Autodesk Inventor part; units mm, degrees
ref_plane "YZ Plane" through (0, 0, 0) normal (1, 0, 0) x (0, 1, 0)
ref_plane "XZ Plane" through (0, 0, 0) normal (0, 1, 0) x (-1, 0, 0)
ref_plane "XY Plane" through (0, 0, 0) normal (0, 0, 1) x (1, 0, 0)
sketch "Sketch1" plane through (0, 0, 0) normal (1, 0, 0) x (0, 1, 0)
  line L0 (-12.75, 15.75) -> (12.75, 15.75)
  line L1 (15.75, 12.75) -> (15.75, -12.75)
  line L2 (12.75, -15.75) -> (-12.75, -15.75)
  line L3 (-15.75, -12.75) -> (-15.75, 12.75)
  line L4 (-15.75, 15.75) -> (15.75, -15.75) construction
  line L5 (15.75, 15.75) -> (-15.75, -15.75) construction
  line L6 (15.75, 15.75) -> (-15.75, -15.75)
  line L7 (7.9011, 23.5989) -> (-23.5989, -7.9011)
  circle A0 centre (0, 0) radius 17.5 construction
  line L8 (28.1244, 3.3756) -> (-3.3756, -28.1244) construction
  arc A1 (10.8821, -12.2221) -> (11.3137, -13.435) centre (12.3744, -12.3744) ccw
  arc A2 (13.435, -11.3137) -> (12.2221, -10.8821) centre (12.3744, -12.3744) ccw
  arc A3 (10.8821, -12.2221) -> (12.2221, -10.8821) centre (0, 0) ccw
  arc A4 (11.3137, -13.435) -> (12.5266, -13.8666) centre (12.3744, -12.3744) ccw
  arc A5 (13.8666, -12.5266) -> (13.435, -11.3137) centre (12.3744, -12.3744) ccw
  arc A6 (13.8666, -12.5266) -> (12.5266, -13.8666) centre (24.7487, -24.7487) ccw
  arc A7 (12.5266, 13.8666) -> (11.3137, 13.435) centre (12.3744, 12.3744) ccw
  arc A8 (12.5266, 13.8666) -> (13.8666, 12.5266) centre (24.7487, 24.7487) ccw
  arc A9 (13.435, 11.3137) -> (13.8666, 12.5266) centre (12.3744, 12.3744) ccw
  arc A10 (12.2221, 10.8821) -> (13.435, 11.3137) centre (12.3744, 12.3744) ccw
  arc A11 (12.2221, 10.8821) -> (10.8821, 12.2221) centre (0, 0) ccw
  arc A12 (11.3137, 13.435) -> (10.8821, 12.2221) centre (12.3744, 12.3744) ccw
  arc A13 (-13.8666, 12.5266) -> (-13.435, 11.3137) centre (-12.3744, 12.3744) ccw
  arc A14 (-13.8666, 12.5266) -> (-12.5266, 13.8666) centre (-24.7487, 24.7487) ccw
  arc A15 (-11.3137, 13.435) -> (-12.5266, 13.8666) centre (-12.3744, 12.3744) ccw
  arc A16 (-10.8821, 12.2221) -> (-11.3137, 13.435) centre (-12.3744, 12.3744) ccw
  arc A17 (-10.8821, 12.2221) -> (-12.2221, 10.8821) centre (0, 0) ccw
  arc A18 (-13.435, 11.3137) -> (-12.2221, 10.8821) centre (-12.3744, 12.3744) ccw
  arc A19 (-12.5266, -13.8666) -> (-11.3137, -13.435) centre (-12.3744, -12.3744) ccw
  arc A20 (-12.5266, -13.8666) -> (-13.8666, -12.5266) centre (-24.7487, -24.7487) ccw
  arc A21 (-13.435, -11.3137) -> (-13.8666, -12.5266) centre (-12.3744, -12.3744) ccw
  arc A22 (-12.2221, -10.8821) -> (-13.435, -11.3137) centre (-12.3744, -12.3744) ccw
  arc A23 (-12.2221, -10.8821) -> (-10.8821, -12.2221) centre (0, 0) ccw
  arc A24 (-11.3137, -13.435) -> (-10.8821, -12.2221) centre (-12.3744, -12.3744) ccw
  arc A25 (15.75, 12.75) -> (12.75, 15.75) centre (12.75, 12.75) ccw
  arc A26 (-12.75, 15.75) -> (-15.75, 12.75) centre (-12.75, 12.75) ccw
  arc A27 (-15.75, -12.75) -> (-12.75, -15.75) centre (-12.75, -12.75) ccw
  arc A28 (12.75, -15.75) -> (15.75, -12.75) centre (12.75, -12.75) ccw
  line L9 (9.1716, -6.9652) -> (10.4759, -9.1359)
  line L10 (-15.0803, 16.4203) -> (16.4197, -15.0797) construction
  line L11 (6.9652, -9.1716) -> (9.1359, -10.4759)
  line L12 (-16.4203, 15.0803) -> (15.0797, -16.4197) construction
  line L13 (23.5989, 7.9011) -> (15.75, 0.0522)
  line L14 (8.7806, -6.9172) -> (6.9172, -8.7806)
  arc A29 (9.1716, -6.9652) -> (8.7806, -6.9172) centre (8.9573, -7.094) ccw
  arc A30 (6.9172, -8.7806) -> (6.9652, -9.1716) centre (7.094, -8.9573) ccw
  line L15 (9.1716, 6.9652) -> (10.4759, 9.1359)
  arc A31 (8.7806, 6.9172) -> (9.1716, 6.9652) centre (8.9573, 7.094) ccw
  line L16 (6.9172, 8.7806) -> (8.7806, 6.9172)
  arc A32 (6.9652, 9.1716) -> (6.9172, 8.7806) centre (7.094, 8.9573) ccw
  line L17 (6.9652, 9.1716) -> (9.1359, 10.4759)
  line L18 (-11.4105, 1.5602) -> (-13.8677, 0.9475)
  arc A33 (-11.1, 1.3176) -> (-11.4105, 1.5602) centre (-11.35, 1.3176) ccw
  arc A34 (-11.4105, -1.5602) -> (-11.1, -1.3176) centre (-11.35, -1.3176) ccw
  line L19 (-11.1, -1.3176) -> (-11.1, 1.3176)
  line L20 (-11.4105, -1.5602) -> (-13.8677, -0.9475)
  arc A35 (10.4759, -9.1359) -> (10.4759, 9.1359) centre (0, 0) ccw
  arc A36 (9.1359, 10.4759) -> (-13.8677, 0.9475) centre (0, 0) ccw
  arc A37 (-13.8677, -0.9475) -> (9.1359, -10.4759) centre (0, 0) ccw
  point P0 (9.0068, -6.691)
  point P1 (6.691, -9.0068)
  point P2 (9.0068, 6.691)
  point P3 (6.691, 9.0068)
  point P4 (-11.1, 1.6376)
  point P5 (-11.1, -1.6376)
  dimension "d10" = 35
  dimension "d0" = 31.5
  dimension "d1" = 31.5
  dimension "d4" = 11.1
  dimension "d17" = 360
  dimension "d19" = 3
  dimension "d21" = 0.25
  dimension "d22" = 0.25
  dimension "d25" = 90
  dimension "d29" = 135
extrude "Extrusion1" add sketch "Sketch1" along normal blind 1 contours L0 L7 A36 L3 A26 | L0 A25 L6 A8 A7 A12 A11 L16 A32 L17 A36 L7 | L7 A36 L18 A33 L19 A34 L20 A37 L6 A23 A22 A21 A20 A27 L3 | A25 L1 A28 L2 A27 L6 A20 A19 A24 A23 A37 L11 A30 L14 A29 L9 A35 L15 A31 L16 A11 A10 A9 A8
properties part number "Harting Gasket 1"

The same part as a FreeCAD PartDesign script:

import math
import FreeCAD as App
import Part
import Sketcher
from FreeCAD import Vector
Q = App.Units.Quantity

doc = App.newDocument("Part")
body = doc.addObject("PartDesign::Body", "Body")

sketch1 = body.newObject("Sketcher::SketchObject", "Sketch")
sketch1.AttachmentSupport = (doc.getObject("YZ_Plane"), [""])
sketch1.MapMode = "FlatFace"
sketch1.addGeometry([
    Part.ArcOfCircle(Part.Circle(Vector(-12.75, 12.75, 0), Vector(0, 0, 1), 3), math.radians(90), math.radians(180)),
    Part.LineSegment(Vector(-15.75, 12.75, 0), Vector(-15.75, -12.75, 0)),
    Part.ArcOfCircle(Part.Circle(Vector(-12.75, -12.75, 0), Vector(0, 0, 1), 3), math.radians(180), math.radians(270)),
    Part.LineSegment(Vector(-12.75, -15.75, 0), Vector(12.75, -15.75, 0)),
    Part.ArcOfCircle(Part.Circle(Vector(12.75, -12.75, 0), Vector(0, 0, 1), 3), math.radians(-90), math.radians(0)),
    Part.LineSegment(Vector(15.75, -12.75, 0), Vector(15.75, 12.75, 0)),
    Part.ArcOfCircle(Part.Circle(Vector(12.75, 12.75, 0), Vector(0, 0, 1), 3), math.radians(0), math.radians(90)),
    Part.LineSegment(Vector(12.75, 15.75, 0), Vector(-12.75, 15.75, 0)),
    Part.LineSegment(Vector(9.14, 10.48, 0), Vector(6.97, 9.17, 0)),
    Part.ArcOfCircle(Part.Circle(Vector(7.09, 8.96, 0), Vector(0, 0, 1), 0.25), math.radians(121), math.radians(225)),
    Part.LineSegment(Vector(6.92, 8.78, 0), Vector(8.78, 6.92, 0)),
    Part.ArcOfCircle(Part.Circle(Vector(8.96, 7.09, 0), Vector(0, 0, 1), 0.25), math.radians(-135), math.radians(-31)),
    Part.LineSegment(Vector(9.17, 6.97, 0), Vector(10.48, 9.14, 0)),
    Part.ArcOfCircle(Part.Circle(Vector(0, 0, 0), Vector(0, 0, 1), 13.9), math.radians(-41), math.radians(41)),
    Part.LineSegment(Vector(10.48, -9.14, 0), Vector(9.17, -6.97, 0)),
    Part.ArcOfCircle(Part.Circle(Vector(8.96, -7.09, 0), Vector(0, 0, 1), 0.25), math.radians(31), math.radians(135)),
    Part.LineSegment(Vector(8.78, -6.92, 0), Vector(6.92, -8.78, 0)),
    Part.ArcOfCircle(Part.Circle(Vector(7.09, -8.96, 0), Vector(0, 0, 1), 0.25), math.radians(135), math.radians(239)),
    Part.LineSegment(Vector(6.97, -9.17, 0), Vector(9.14, -10.48, 0)),
    Part.ArcOfCircle(Part.Circle(Vector(0, 0, 0), Vector(0, 0, 1), 13.9), math.radians(-176), math.radians(-49)),
    Part.LineSegment(Vector(-13.87, -0.95, 0), Vector(-11.41, -1.56, 0)),
    Part.ArcOfCircle(Part.Circle(Vector(-11.35, -1.32, 0), Vector(0, 0, 1), 0.25), math.radians(-104), math.radians(0)),
    Part.LineSegment(Vector(-11.1, -1.32, 0), Vector(-11.1, 1.32, 0)),
    Part.ArcOfCircle(Part.Circle(Vector(-11.35, 1.32, 0), Vector(0, 0, 1), 0.25), math.radians(0), math.radians(104)),
    Part.LineSegment(Vector(-11.41, 1.56, 0), Vector(-13.87, 0.95, 0)),
    Part.ArcOfCircle(Part.Circle(Vector(0, 0, 0), Vector(0, 0, 1), 13.9), math.radians(49), math.radians(176)),
    Part.ArcOfCircle(Part.Circle(Vector(-12.37, 12.37, 0), Vector(0, 0, 1), 1.5), math.radians(174), math.radians(225)),
    Part.ArcOfCircle(Part.Circle(Vector(-24.75, 24.75, 0), Vector(0, 0, 1), 16.36), math.radians(-48.32), math.radians(-41.68)),
    Part.ArcOfCircle(Part.Circle(Vector(-12.37, 12.37, 0), Vector(0, 0, 1), 1.5), math.radians(45), math.radians(96)),
    Part.ArcOfCircle(Part.Circle(Vector(-12.37, 12.37, 0), Vector(0, 0, 1), 1.5), math.radians(-6), math.radians(45)),
    Part.ArcOfCircle(Part.Circle(Vector(0, 0, 0), Vector(0, 0, 1), 16.36), math.radians(131.68), math.radians(138.32)),
    Part.ArcOfCircle(Part.Circle(Vector(-12.37, 12.37, 0), Vector(0, 0, 1), 1.5), math.radians(-135), math.radians(-84)),
    Part.ArcOfCircle(Part.Circle(Vector(24.75, 24.75, 0), Vector(0, 0, 1), 16.36), math.radians(-138.32), math.radians(-131.68)),
    Part.ArcOfCircle(Part.Circle(Vector(12.37, 12.37, 0), Vector(0, 0, 1), 1.5), math.radians(-45), math.radians(6)),
    Part.ArcOfCircle(Part.Circle(Vector(12.37, 12.37, 0), Vector(0, 0, 1), 1.5), math.radians(-96), math.radians(-45)),
    Part.ArcOfCircle(Part.Circle(Vector(0, 0, 0), Vector(0, 0, 1), 16.36), math.radians(41.68), math.radians(48.32)),
    Part.ArcOfCircle(Part.Circle(Vector(12.37, 12.37, 0), Vector(0, 0, 1), 1.5), math.radians(135), math.radians(186)),
    Part.ArcOfCircle(Part.Circle(Vector(12.37, 12.37, 0), Vector(0, 0, 1), 1.5), math.radians(84), math.radians(135)),
    Part.ArcOfCircle(Part.Circle(Vector(0, 0, 0), Vector(0, 0, 1), 16.36), math.radians(-138.32), math.radians(-131.68)),
    Part.ArcOfCircle(Part.Circle(Vector(-12.37, -12.37, 0), Vector(0, 0, 1), 1.5), math.radians(-45), math.radians(6)),
    Part.ArcOfCircle(Part.Circle(Vector(-12.37, -12.37, 0), Vector(0, 0, 1), 1.5), math.radians(-96), math.radians(-45)),
    Part.ArcOfCircle(Part.Circle(Vector(-24.75, -24.75, 0), Vector(0, 0, 1), 16.36), math.radians(41.68), math.radians(48.32)),
    Part.ArcOfCircle(Part.Circle(Vector(-12.37, -12.37, 0), Vector(0, 0, 1), 1.5), math.radians(135), math.radians(186)),
    Part.ArcOfCircle(Part.Circle(Vector(-12.37, -12.37, 0), Vector(0, 0, 1), 1.5), math.radians(84), math.radians(135)),
    Part.ArcOfCircle(Part.Circle(Vector(24.75, -24.75, 0), Vector(0, 0, 1), 16.36), math.radians(131.68), math.radians(138.32)),
    Part.ArcOfCircle(Part.Circle(Vector(12.37, -12.37, 0), Vector(0, 0, 1), 1.5), math.radians(-135), math.radians(-84)),
    Part.ArcOfCircle(Part.Circle(Vector(12.37, -12.37, 0), Vector(0, 0, 1), 1.5), math.radians(174), math.radians(225)),
    Part.ArcOfCircle(Part.Circle(Vector(0, 0, 0), Vector(0, 0, 1), 16.36), math.radians(-48.32), math.radians(-41.68)),
    Part.ArcOfCircle(Part.Circle(Vector(12.37, -12.37, 0), Vector(0, 0, 1), 1.5), math.radians(45), math.radians(96)),
    Part.ArcOfCircle(Part.Circle(Vector(12.37, -12.37, 0), Vector(0, 0, 1), 1.5), math.radians(-6), math.radians(45)),
], False)
sketch1.addConstraint([
    Sketcher.Constraint("Tangent", 0, 2, 1, 1),
    Sketcher.Constraint("Tangent", 1, 2, 2, 1),
    Sketcher.Constraint("Tangent", 2, 2, 3, 1),
    Sketcher.Constraint("Tangent", 3, 2, 4, 1),
    Sketcher.Constraint("Tangent", 4, 2, 5, 1),
    Sketcher.Constraint("Tangent", 5, 2, 6, 1),
    Sketcher.Constraint("Tangent", 6, 2, 7, 1),
    Sketcher.Constraint("Tangent", 7, 2, 0, 1),
    Sketcher.Constraint("Tangent", 8, 2, 9, 1),
    Sketcher.Constraint("Tangent", 9, 2, 10, 1),
    Sketcher.Constraint("Tangent", 10, 2, 11, 1),
    Sketcher.Constraint("Tangent", 11, 2, 12, 1),
    Sketcher.Constraint("Coincident", 12, 2, 13, 2),
    Sketcher.Constraint("Coincident", 13, 1, 14, 1),
    Sketcher.Constraint("Tangent", 14, 2, 15, 1),
    Sketcher.Constraint("Tangent", 15, 2, 16, 1),
    Sketcher.Constraint("Tangent", 16, 2, 17, 1),
    Sketcher.Constraint("Tangent", 17, 2, 18, 1),
    Sketcher.Constraint("Coincident", 18, 2, 19, 2),
    Sketcher.Constraint("Coincident", 19, 1, 20, 1),
    Sketcher.Constraint("Tangent", 20, 2, 21, 1),
    Sketcher.Constraint("Tangent", 21, 2, 22, 1),
    Sketcher.Constraint("Tangent", 22, 2, 23, 1),
    Sketcher.Constraint("Tangent", 23, 2, 24, 1),
    Sketcher.Constraint("Coincident", 24, 2, 25, 2),
    Sketcher.Constraint("Coincident", 25, 1, 8, 1),
    Sketcher.Constraint("Coincident", 26, 1, 27, 1),
    Sketcher.Constraint("Coincident", 27, 2, 28, 2),
    Sketcher.Constraint("Tangent", 28, 1, 29, 2),
    Sketcher.Constraint("Coincident", 29, 1, 30, 1),
    Sketcher.Constraint("Coincident", 30, 2, 31, 2),
    Sketcher.Constraint("Tangent", 31, 1, 26, 2),
    Sketcher.Constraint("Coincident", 32, 2, 33, 2),
    Sketcher.Constraint("Tangent", 33, 1, 34, 2),
    Sketcher.Constraint("Coincident", 34, 1, 35, 1),
    Sketcher.Constraint("Coincident", 35, 2, 36, 2),
    Sketcher.Constraint("Tangent", 36, 1, 37, 2),
    Sketcher.Constraint("Coincident", 37, 1, 32, 1),
    Sketcher.Constraint("Coincident", 38, 2, 39, 2),
    Sketcher.Constraint("Tangent", 39, 1, 40, 2),
    Sketcher.Constraint("Coincident", 40, 1, 41, 1),
    Sketcher.Constraint("Coincident", 41, 2, 42, 2),
    Sketcher.Constraint("Tangent", 42, 1, 43, 2),
    Sketcher.Constraint("Coincident", 43, 1, 38, 1),
    Sketcher.Constraint("Coincident", 44, 2, 45, 2),
    Sketcher.Constraint("Tangent", 45, 1, 46, 2),
    Sketcher.Constraint("Coincident", 46, 1, 47, 1),
    Sketcher.Constraint("Coincident", 47, 2, 48, 2),
    Sketcher.Constraint("Tangent", 48, 1, 49, 2),
    Sketcher.Constraint("Coincident", 49, 1, 44, 1),
    Sketcher.Constraint("Vertical", 1),
    Sketcher.Constraint("Horizontal", 3),
    Sketcher.Constraint("Vertical", 5),
    Sketcher.Constraint("Horizontal", 7),
    Sketcher.Constraint("Vertical", 22),
    Sketcher.Constraint("Coincident", 13, 3, -1, 1),
    Sketcher.Constraint("Coincident", 19, 3, -1, 1),
    Sketcher.Constraint("Coincident", 25, 3, -1, 1),
    Sketcher.Constraint("Coincident", 30, 3, -1, 1),
    Sketcher.Constraint("Coincident", 35, 3, -1, 1),
    Sketcher.Constraint("Coincident", 38, 3, -1, 1),
    Sketcher.Constraint("Coincident", 47, 3, -1, 1),
    Sketcher.Constraint("Coincident", 28, 3, 26, 3),
    Sketcher.Constraint("Coincident", 36, 3, 33, 3),
    Sketcher.Constraint("Coincident", 42, 3, 39, 3),
    Sketcher.Constraint("Coincident", 48, 3, 45, 3),
    Sketcher.Constraint("Equal", 0, 2),
    Sketcher.Constraint("Equal", 2, 4),
    Sketcher.Constraint("Equal", 4, 6),
    Sketcher.Constraint("Equal", 9, 11),
    Sketcher.Constraint("Equal", 11, 15),
    Sketcher.Constraint("Equal", 15, 17),
    Sketcher.Constraint("Equal", 13, 19),
    Sketcher.Constraint("Equal", 17, 21),
    Sketcher.Constraint("Equal", 21, 23),
    Sketcher.Constraint("Equal", 19, 25),
    Sketcher.Constraint("Equal", 26, 28),
    Sketcher.Constraint("Equal", 28, 29),
    Sketcher.Constraint("Equal", 27, 30),
    Sketcher.Constraint("Equal", 29, 31),
    Sketcher.Constraint("Equal", 30, 32),
    Sketcher.Constraint("Equal", 31, 33),
    Sketcher.Constraint("Equal", 33, 34),
    Sketcher.Constraint("Equal", 32, 35),
    Sketcher.Constraint("Equal", 34, 36),
    Sketcher.Constraint("Equal", 36, 37),
    Sketcher.Constraint("Equal", 35, 38),
    Sketcher.Constraint("Equal", 37, 39),
    Sketcher.Constraint("Equal", 39, 40),
    Sketcher.Constraint("Equal", 38, 41),
    Sketcher.Constraint("Equal", 40, 42),
    Sketcher.Constraint("Equal", 42, 43),
    Sketcher.Constraint("Equal", 41, 44),
    Sketcher.Constraint("Equal", 43, 45),
    Sketcher.Constraint("Equal", 45, 46),
    Sketcher.Constraint("Equal", 44, 47),
    Sketcher.Constraint("Equal", 46, 48),
    Sketcher.Constraint("Equal", 48, 49),
    Sketcher.Constraint("Symmetric", 0, 3, 4, 3, -1, 1),
    Sketcher.Constraint("Symmetric", 33, 3, 39, 3, -1, 1),
    Sketcher.Constraint("Symmetric", 32, 3, 41, 3, -1, 1),
    Sketcher.Constraint("Symmetric", 27, 3, 44, 3, -1, 1),
    Sketcher.Constraint("Symmetric", 26, 3, 45, 3, -1, 1),
    Sketcher.Constraint("Symmetric", 27, 3, 32, 3, -2),
    Sketcher.Constraint("Symmetric", 26, 3, 33, 3, -2),
    Sketcher.Constraint("Symmetric", 11, 3, 15, 3, -1),
    Sketcher.Constraint("Symmetric", 9, 3, 17, 3, -1),
    Sketcher.Constraint("Symmetric", 20, 2, 23, 2, -1),
    Sketcher.Constraint("Perpendicular", 8, 14),
    Sketcher.Constraint("Perpendicular", 10, 16),
    Sketcher.Constraint("Perpendicular", 12, 18),
    Sketcher.Constraint("Horizontal", 31, 1, 33, 1),
    Sketcher.Constraint("Horizontal", 28, 1, 36, 1),
    Sketcher.Constraint("Horizontal", 39, 1, 45, 1),
    Sketcher.Constraint("Horizontal", 42, 1, 48, 1),
    Sketcher.Constraint("Vertical", 12, 2, 13, 1),
    Sketcher.Constraint("Vertical", 28, 1, 39, 1),
    Sketcher.Constraint("Vertical", 31, 1, 42, 1),
    Sketcher.Constraint("Equal", 7, 1),
    Sketcher.Constraint("Equal", 8, 12),
    Sketcher.Constraint("Equal", 18, 20),
    Sketcher.Constraint("Radius", 0, Q("3 mm")),
    Sketcher.Constraint("Radius", 26, Q("1.5 mm")),
    Sketcher.Constraint("Radius", 9, Q("0.25 mm")),
    Sketcher.Constraint("DistanceX", 21, 2, -1, 1, Q("11.1 mm")),
    Sketcher.Constraint("Radius", 13, Q("13.9 mm")),
    Sketcher.Constraint("Angle", 8, Q("-148.9998 deg")),
    Sketcher.Constraint("Angle", 20, Q("-14.0011 deg")),
    Sketcher.Constraint("DistanceX", 3, 1, 3, 2, Q("25.5 mm")),
    Sketcher.Constraint("Radius", 27, Q("16.3646 mm")),
    Sketcher.Constraint("DistanceY", 22, 1, 22, 2, Q("2.6352 mm")),
    Sketcher.Constraint("DistanceX", -1, 1, 9, 3, Q("7.094 mm")),
    Sketcher.Constraint("DistanceY", -1, 1, 28, 1, Q("13.435 mm")),
    Sketcher.Constraint("DistanceY", -1, 1, 29, 1, Q("12.222 mm")),
    Sketcher.Constraint("DistanceX", 30, 2, -1, 1, Q("12.222 mm")),
    Sketcher.Constraint("DistanceX", 31, 1, -1, 1, Q("13.435 mm")),
    Sketcher.Constraint("DistanceX", 27, 3, -1, 1, Q("24.7487 mm")),
    Sketcher.Constraint("DistanceY", -1, 1, 27, 3, Q("24.7487 mm")),
])
pad1 = body.newObject("PartDesign::Pad", "Pad")
pad1.Profile = sketch1
pad1.Length = 1

doc.recompute()
